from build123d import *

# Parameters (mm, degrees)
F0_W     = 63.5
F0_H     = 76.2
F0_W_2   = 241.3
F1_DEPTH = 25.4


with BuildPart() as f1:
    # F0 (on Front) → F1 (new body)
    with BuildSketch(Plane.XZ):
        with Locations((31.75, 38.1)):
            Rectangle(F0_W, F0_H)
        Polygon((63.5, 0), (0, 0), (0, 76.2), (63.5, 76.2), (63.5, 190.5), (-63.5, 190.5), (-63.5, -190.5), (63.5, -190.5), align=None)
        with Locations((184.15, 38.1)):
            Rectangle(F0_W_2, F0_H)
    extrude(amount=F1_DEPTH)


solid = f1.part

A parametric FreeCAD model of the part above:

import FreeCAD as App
import Part
import Sketcher

V = App.Vector
Q = App.Units.Quantity

doc = App.newDocument("Part")
body = doc.addObject("PartDesign::Body", "Body")

sketch1 = doc.addObject("Sketcher::SketchObject", "Sketch")
body.addObject(sketch1)
sketch1.AttachmentSupport = (doc.XZ_Plane, [""])
sketch1.MapMode = "FlatFace"
sketch1.addGeometry(Part.LineSegment(V(64, 190, 0), V(-64, 190, 0)), False)
sketch1.addGeometry(Part.LineSegment(V(-64, 190, 0), V(-64, -190, 0)), False)
sketch1.addGeometry(Part.LineSegment(V(-64, -190, 0), V(64, -190, 0)), False)
sketch1.addGeometry(Part.LineSegment(V(64, -190, 0), V(64, 0, 0)), False)
sketch1.addGeometry(Part.LineSegment(V(64, 0, 0), V(305, 0, 0)), False)
sketch1.addGeometry(Part.LineSegment(V(305, 0, 0), V(305, 76, 0)), False)
sketch1.addGeometry(Part.LineSegment(V(305, 76, 0), V(64, 76, 0)), False)
sketch1.addGeometry(Part.LineSegment(V(64, 76, 0), V(64, 190, 0)), False)
sketch1.addConstraint(Sketcher.Constraint("Coincident", 0, 2, 1, 1))
sketch1.addConstraint(Sketcher.Constraint("Coincident", 1, 2, 2, 1))
sketch1.addConstraint(Sketcher.Constraint("Coincident", 2, 2, 3, 1))
sketch1.addConstraint(Sketcher.Constraint("Coincident", 3, 2, 4, 1))
sketch1.addConstraint(Sketcher.Constraint("Coincident", 4, 2, 5, 1))
sketch1.addConstraint(Sketcher.Constraint("Coincident", 5, 2, 6, 1))
sketch1.addConstraint(Sketcher.Constraint("Coincident", 6, 2, 7, 1))
sketch1.addConstraint(Sketcher.Constraint("Coincident", 7, 2, 0, 1))
sketch1.addConstraint(Sketcher.Constraint("Horizontal", 0))
sketch1.addConstraint(Sketcher.Constraint("Vertical", 1))
sketch1.addConstraint(Sketcher.Constraint("Horizontal", 2))
sketch1.addConstraint(Sketcher.Constraint("Vertical", 3))
sketch1.addConstraint(Sketcher.Constraint("Horizontal", 4))
sketch1.addConstraint(Sketcher.Constraint("Vertical", 5))
sketch1.addConstraint(Sketcher.Constraint("Horizontal", 6))
sketch1.addConstraint(Sketcher.Constraint("Vertical", 7))
sketch1.addConstraint(Sketcher.Constraint("Symmetric", 0, 2, 2, 2, -1, 1))
sketch1.addConstraint(Sketcher.Constraint("PointOnObject", 3, 2, -1))
sketch1.addConstraint(Sketcher.Constraint("Vertical", 3, 2, 6, 2))
sketch1.addConstraint(Sketcher.Constraint("DistanceX", 0, 2, 0, 1, Q("5 in")))
sketch1.addConstraint(Sketcher.Constraint("DistanceY", 1, 2, 1, 1, Q("15 in")))
sketch1.addConstraint(Sketcher.Constraint("DistanceY", 5, 1, 5, 2, Q("3 in")))
sketch1.addConstraint(Sketcher.Constraint("DistanceX", 4, 1, 4, 2, Q("9.5 in")))
pad1 = doc.addObject("PartDesign::Pad", "Pad")
body.addObject(pad1)
pad1.Profile = sketch1
pad1.Length = Q("1 in")

doc.recompute()
